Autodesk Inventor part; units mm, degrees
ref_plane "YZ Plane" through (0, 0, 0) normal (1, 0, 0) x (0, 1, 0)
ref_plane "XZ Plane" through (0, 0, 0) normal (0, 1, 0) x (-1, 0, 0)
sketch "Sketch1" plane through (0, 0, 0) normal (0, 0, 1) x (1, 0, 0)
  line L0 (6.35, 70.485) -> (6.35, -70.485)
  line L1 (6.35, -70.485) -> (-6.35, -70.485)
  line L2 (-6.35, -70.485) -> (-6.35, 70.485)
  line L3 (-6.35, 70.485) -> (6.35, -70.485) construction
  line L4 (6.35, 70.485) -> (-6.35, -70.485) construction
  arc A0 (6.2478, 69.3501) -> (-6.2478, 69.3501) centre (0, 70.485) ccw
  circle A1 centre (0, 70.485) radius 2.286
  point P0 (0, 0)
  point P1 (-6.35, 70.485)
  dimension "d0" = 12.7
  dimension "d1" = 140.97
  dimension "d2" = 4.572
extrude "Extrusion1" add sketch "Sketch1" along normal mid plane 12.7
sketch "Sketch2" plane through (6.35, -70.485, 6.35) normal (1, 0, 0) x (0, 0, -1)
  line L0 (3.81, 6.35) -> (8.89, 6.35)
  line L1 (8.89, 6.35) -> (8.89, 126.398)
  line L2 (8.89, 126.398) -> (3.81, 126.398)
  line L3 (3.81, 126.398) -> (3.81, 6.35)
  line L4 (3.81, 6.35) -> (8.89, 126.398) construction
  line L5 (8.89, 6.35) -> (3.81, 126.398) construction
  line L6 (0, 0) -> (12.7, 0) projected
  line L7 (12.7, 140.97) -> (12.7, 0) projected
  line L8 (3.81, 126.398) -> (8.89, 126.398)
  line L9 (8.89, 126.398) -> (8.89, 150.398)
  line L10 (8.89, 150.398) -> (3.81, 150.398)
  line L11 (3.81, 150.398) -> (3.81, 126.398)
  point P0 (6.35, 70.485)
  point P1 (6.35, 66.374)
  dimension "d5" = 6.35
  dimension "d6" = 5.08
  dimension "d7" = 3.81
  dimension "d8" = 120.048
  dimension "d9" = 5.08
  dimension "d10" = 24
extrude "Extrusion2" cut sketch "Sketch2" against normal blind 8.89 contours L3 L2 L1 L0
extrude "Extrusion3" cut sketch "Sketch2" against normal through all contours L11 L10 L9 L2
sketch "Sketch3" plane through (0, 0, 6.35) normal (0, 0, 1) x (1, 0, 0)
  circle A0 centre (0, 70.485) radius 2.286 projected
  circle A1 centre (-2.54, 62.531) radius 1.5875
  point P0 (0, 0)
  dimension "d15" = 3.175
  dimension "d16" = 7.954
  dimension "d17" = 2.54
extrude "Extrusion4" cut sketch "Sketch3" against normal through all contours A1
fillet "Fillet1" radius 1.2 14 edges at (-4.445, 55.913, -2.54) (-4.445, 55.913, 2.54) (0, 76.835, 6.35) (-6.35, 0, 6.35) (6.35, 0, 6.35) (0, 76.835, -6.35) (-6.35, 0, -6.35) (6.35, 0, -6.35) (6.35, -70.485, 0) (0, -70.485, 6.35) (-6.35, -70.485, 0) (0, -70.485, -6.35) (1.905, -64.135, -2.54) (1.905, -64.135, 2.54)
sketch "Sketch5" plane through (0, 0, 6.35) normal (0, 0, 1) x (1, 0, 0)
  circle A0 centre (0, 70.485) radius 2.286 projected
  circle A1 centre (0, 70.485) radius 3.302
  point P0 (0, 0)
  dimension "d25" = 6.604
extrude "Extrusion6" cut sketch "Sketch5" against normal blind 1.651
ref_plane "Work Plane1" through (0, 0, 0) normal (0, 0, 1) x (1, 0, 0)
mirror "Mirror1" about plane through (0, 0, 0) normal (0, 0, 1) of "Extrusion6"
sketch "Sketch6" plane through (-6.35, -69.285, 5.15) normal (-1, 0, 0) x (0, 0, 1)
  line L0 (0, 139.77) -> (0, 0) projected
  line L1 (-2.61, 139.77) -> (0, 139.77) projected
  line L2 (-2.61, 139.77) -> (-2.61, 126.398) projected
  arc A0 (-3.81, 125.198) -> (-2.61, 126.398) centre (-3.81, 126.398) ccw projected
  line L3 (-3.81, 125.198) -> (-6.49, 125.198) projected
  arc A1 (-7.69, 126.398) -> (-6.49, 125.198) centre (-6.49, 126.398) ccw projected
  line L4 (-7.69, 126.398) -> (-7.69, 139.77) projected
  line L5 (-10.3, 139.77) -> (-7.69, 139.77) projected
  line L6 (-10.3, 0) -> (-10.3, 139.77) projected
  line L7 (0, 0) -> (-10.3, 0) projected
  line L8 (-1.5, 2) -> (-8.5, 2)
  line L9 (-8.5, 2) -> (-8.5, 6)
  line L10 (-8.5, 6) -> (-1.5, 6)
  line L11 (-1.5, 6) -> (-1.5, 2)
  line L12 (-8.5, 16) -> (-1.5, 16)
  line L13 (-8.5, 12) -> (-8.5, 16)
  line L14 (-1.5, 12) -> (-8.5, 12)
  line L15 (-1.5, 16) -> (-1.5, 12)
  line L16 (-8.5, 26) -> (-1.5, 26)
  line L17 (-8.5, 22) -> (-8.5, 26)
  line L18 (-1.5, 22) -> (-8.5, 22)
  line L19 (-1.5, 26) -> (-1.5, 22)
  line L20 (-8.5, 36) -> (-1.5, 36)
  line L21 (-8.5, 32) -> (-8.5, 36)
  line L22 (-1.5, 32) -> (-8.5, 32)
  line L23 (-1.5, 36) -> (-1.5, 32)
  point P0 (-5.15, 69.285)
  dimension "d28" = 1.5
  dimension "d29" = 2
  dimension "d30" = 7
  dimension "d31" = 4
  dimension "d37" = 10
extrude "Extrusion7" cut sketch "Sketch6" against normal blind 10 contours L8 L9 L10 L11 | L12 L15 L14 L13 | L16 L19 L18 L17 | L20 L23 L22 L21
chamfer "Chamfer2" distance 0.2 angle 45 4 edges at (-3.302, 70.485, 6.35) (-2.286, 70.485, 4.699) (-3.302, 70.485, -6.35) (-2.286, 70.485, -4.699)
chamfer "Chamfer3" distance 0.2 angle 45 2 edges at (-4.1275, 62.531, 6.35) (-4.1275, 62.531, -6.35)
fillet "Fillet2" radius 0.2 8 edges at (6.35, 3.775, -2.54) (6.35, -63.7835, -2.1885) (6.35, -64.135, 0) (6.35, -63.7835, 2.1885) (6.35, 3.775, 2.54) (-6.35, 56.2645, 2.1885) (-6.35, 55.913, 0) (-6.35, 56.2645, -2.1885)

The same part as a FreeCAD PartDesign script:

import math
import FreeCAD as App
import Part
import Sketcher
Q = App.Units.Quantity


def edges_at(feature, points):
    """Names of the edges that pass closest to the given points."""
    edges = feature.Shape.Edges
    near = lambda p: min(range(len(edges)), key=lambda i: edges[i].distToShape(Part.Vertex(*p))[0])
    return sorted({f"Edge{near(p) + 1}" for p in points})

doc = App.newDocument("Part")
body = doc.addObject("PartDesign::Body", "Body")

# Sketch on XY plane
sketch1 = body.newObject("Sketcher::SketchObject", "Sketch")
sketch1.AttachmentSupport = (doc.getObject("XY_Plane"), [""])
sketch1.MapMode = "FlatFace"
sketch1.addGeometry([
    Part.LineSegment(App.Vector(6.3, -70.5, 0), App.Vector(6.3, 70.5, 0)),  # 0
    Part.ArcOfCircle(Part.Circle(App.Vector(0, 70.5, 0), App.Vector(0, 0, 1), 6.4), math.radians(0), math.radians(180)),  # 1
    Part.LineSegment(App.Vector(-6.3, 70.5, 0), App.Vector(-6.3, -70.5, 0)),  # 2
    Part.LineSegment(App.Vector(-6.3, -70.5, 0), App.Vector(6.3, -70.5, 0)),  # 3
    Part.Circle(App.Vector(0, 70.5, 0), App.Vector(0, 0, 1), 2.3),  # 4
], False)
sketch1.addConstraint([
    Sketcher.Constraint("Tangent", 0, 2, 1, 1),
    Sketcher.Constraint("Tangent", 1, 2, 2, 1),
    Sketcher.Constraint("Coincident", 2, 2, 3, 1),
    Sketcher.Constraint("Coincident", 3, 2, 0, 1),
    Sketcher.Constraint("Vertical", 0),
    Sketcher.Constraint("Vertical", 2),
    Sketcher.Constraint("Horizontal", 3),
    Sketcher.Constraint("Coincident", 4, 3, 1, 3),
    Sketcher.Constraint("Symmetric", 0, 2, 2, 2, -1, 1),
    Sketcher.Constraint("Diameter", 4, Q("0.18 in")),
    Sketcher.Constraint("Radius", 1, Q("0.25 in")),
    Sketcher.Constraint("DistanceY", 0, 1, 0, 2, Q("5.55 in")),
])
pad1 = body.newObject("PartDesign::Pad", "Pad")
pad1.Profile = sketch1
pad1.Length = Q("0.5 in")
pad1.Midplane = True

# Sketch on YZ plane
sketch2 = body.newObject("Sketcher::SketchObject", "Sketch001")
sketch2.AttachmentSupport = (doc.getObject("YZ_Plane"), [""])
sketch2.MapMode = "FlatFace"
sketch2.AttachmentOffset = App.Placement(App.Vector(0, 0, 0.25 * 25.4), App.Rotation())
sketch2.addGeometry([
    Part.LineSegment(App.Vector(56, 3, 0), App.Vector(-64, 3, 0)),
    Part.LineSegment(App.Vector(-64, 3, 0), App.Vector(-64, -3, 0)),
    Part.LineSegment(App.Vector(-64, -3, 0), App.Vector(56, -3, 0)),
    Part.LineSegment(App.Vector(56, -3, 0), App.Vector(56, 3, 0)),
], False)
sketch2.addConstraint([
    Sketcher.Constraint("Coincident", 0, 2, 1, 1),
    Sketcher.Constraint("Coincident", 1, 2, 2, 1),
    Sketcher.Constraint("Coincident", 2, 2, 3, 1),
    Sketcher.Constraint("Coincident", 3, 2, 0, 1),
    Sketcher.Constraint("Horizontal", 0),
    Sketcher.Constraint("Vertical", 1),
    Sketcher.Constraint("Horizontal", 2),
    Sketcher.Constraint("Vertical", 3),
    Sketcher.Constraint("DistanceY", 1, 2, 1, 1, Q("0.2 in")),
    Sketcher.Constraint("DistanceX", 0, 2, 0, 1, Q("4.7263 in")),
    Sketcher.Constraint("DistanceY", -1, 1, 0, 2, Q("0.1 in")),
    Sketcher.Constraint("DistanceX", 0, 2, -1, 1, Q("2.525 in")),
])
pocket1 = body.newObject("PartDesign::Pocket", "Pocket")
pocket1.Profile = sketch2
pocket1.Length = Q("0.35 in")

# Sketch on YZ plane
sketch3 = body.newObject("Sketcher::SketchObject", "Sketch002")
sketch3.AttachmentSupport = (doc.getObject("YZ_Plane"), [""])
sketch3.MapMode = "FlatFace"
sketch3.AttachmentOffset = App.Placement(App.Vector(0, 0, 0.25 * 25.4), App.Rotation())
sketch3.addGeometry([
    Part.LineSegment(App.Vector(80, 3, 0), App.Vector(56, 3, 0)),
    Part.LineSegment(App.Vector(56, 3, 0), App.Vector(56, -3, 0)),
    Part.LineSegment(App.Vector(56, -3, 0), App.Vector(80, -3, 0)),
    Part.LineSegment(App.Vector(80, -3, 0), App.Vector(80, 3, 0)),
], False)
sketch3.addConstraint([
    Sketcher.Constraint("Coincident", 0, 2, 1, 1),
    Sketcher.Constraint("Coincident", 1, 2, 2, 1),
    Sketcher.Constraint("Coincident", 2, 2, 3, 1),
    Sketcher.Constraint("Coincident", 3, 2, 0, 1),
    Sketcher.Constraint("Horizontal", 0),
    Sketcher.Constraint("Vertical", 1),
    Sketcher.Constraint("Horizontal", 2),
    Sketcher.Constraint("Vertical", 3),
    Sketcher.Constraint("DistanceY", 1, 2, 1, 1, Q("0.2 in")),
    Sketcher.Constraint("DistanceX", 0, 2, 0, 1, 24.0),
    Sketcher.Constraint("DistanceY", -1, 1, 0, 2, Q("0.1 in")),
    Sketcher.Constraint("DistanceX", -1, 1, 0, 2, Q("2.2013 in")),
])
pocket2 = body.newObject("PartDesign::Pocket", "Pocket001")
pocket2.Profile = sketch3
pocket2.Type = "ThroughAll"

# Sketch on XY plane
sketch4 = body.newObject("Sketcher::SketchObject", "Sketch003")
sketch4.AttachmentSupport = (doc.getObject("XY_Plane"), [""])
sketch4.MapMode = "FlatFace"
sketch4.AttachmentOffset = App.Placement(App.Vector(0, 0, 0.25 * 25.4), App.Rotation())
sketch4.addGeometry(Part.Circle(App.Vector(-2.5, 62.5, 0), App.Vector(0, 0, 1), 1.6), False)
sketch4.addConstraint([
    Sketcher.Constraint("Diameter", 0, Q("0.125 in")),
    Sketcher.Constraint("DistanceX", 0, 3, -1, 1, Q("0.1 in")),
    Sketcher.Constraint("DistanceY", -1, 1, 0, 3, 62.531),
])
pocket3 = body.newObject("PartDesign::Pocket", "Pocket002")
pocket3.Profile = sketch4
pocket3.Type = "ThroughAll"
doc.recompute()

fillet = body.newObject("PartDesign::Fillet", "Fillet")
fillet.Base = (pocket3, edges_at(pocket3, [
    (-4.445, 55.913, -2.54),
    (-4.445, 55.913, 2.54),
    (0, 76.835, 6.35),
    (-6.35, 0, 6.35),
    (6.35, 0, 6.35),
    (0, 76.835, -6.35),
    (-6.35, 0, -6.35),
    (6.35, 0, -6.35),
    (6.35, -70.485, 0),
    (0, -70.485, 6.35),
    (-6.35, -70.485, 0),
    (0, -70.485, -6.35),
    (1.905, -64.135, -2.54),
    (1.905, -64.135, 2.54),
]))
fillet.Radius = 1.2

# Sketch on XY plane
sketch5 = body.newObject("Sketcher::SketchObject", "Sketch004")
sketch5.AttachmentSupport = (doc.getObject("XY_Plane"), [""])
sketch5.MapMode = "FlatFace"
sketch5.AttachmentOffset = App.Placement(App.Vector(0, 0, 0.25 * 25.4), App.Rotation())
sketch5.addGeometry([
    Part.Circle(App.Vector(0, 70.5, 0), App.Vector(0, 0, 1), 3.3),
    Part.Circle(App.Vector(0, 70.5, 0), App.Vector(0, 0, 1), 2.3),
], False)
sketch5.addConstraint([
    Sketcher.Constraint("Coincident", 1, 3, 0, 3),
    Sketcher.Constraint("PointOnObject", 0, 3, -2),
    Sketcher.Constraint("Diameter", 0, Q("0.26 in")),
    Sketcher.Constraint("Diameter", 1, Q("0.18 in")),
    Sketcher.Constraint("DistanceY", -1, 1, 0, 3, Q("2.775 in")),
])
pocket4 = body.newObject("PartDesign::Pocket", "Pocket003")
pocket4.Profile = sketch5
pocket4.Length = Q("0.065 in")
doc.recompute()

mirrored = body.newObject("PartDesign::Mirrored", "Mirrored")
mirrored.Originals = [pocket4]
mirrored.MirrorPlane = (doc.getObject("XY_Plane"), [""])
body.Tip = mirrored

# Sketch on YZ plane
sketch6 = body.newObject("Sketcher::SketchObject", "Sketch005")
sketch6.AttachmentSupport = (doc.getObject("YZ_Plane"), [""])
sketch6.MapMode = "FlatFace"
sketch6.AttachmentOffset = App.Placement(App.Vector(0, 0, -0.25 * 25.4), App.Rotation())
sketch6.addGeometry([
    Part.LineSegment(App.Vector(-67.3, -3.4, 0), App.Vector(-67.3, 3.6, 0)),  # 0
    Part.LineSegment(App.Vector(-67.3, 3.6, 0), App.Vector(-63.3, 3.6, 0)),  # 1
    Part.LineSegment(App.Vector(-63.3, 3.6, 0), App.Vector(-63.3, -3.4, 0)),  # 2
    Part.LineSegment(App.Vector(-63.3, -3.4, 0), App.Vector(-67.3, -3.4, 0)),  # 3
    Part.LineSegment(App.Vector(-53.3, 3.6, 0), App.Vector(-53.3, -3.4, 0)),  # 4
    Part.LineSegment(App.Vector(-53.3, -3.4, 0), App.Vector(-57.3, -3.4, 0)),  # 5
    Part.LineSegment(App.Vector(-57.3, -3.4, 0), App.Vector(-57.3, 3.6, 0)),  # 6
    Part.LineSegment(App.Vector(-57.3, 3.6, 0), App.Vector(-53.3, 3.6, 0)),  # 7
    Part.LineSegment(App.Vector(-43.3, 3.6, 0), App.Vector(-43.3, -3.4, 0)),  # 8
    Part.LineSegment(App.Vector(-43.3, -3.4, 0), App.Vector(-47.3, -3.4, 0)),  # 9
    Part.LineSegment(App.Vector(-47.3, -3.4, 0), App.Vector(-47.3, 3.6, 0)),  # 10
    Part.LineSegment(App.Vector(-47.3, 3.6, 0), App.Vector(-43.3, 3.6, 0)),  # 11
    Part.LineSegment(App.Vector(-33.3, 3.6, 0), App.Vector(-33.3, -3.4, 0)),  # 12
    Part.LineSegment(App.Vector(-33.3, -3.4, 0), App.Vector(-37.3, -3.4, 0)),  # 13
    Part.LineSegment(App.Vector(-37.3, -3.4, 0), App.Vector(-37.3, 3.6, 0)),  # 14
    Part.LineSegment(App.Vector(-37.3, 3.6, 0), App.Vector(-33.3, 3.6, 0)),  # 15
], False)
sketch6.addConstraint([
    Sketcher.Constraint("Coincident", 0, 2, 1, 1),
    Sketcher.Constraint("Coincident", 1, 2, 2, 1),
    Sketcher.Constraint("Coincident", 2, 2, 3, 1),
    Sketcher.Constraint("Coincident", 3, 2, 0, 1),
    Sketcher.Constraint("Coincident", 4, 2, 5, 1),
    Sketcher.Constraint("Coincident", 5, 2, 6, 1),
    Sketcher.Constraint("Coincident", 6, 2, 7, 1),
    Sketcher.Constraint("Coincident", 7, 2, 4, 1),
    Sketcher.Constraint("Coincident", 8, 2, 9, 1),
    Sketcher.Constraint("Coincident", 9, 2, 10, 1),
    Sketcher.Constraint("Coincident", 10, 2, 11, 1),
    Sketcher.Constraint("Coincident", 11, 2, 8, 1),
    Sketcher.Constraint("Coincident", 12, 2, 13, 1),
    Sketcher.Constraint("Coincident", 13, 2, 14, 1),
    Sketcher.Constraint("Coincident", 14, 2, 15, 1),
    Sketcher.Constraint("Coincident", 15, 2, 12, 1),
    Sketcher.Constraint("Vertical", 0),
    Sketcher.Constraint("Horizontal", 1),
    Sketcher.Constraint("Vertical", 2),
    Sketcher.Constraint("Horizontal", 3),
    Sketcher.Constraint("Vertical", 4),
    Sketcher.Constraint("Horizontal", 5),
    Sketcher.Constraint("Vertical", 6),
    Sketcher.Constraint("Horizontal", 7),
    Sketcher.Constraint("Vertical", 8),
    Sketcher.Constraint("Horizontal", 9),
    Sketcher.Constraint("Vertical", 10),
    Sketcher.Constraint("Horizontal", 11),
    Sketcher.Constraint("Vertical", 12),
    Sketcher.Constraint("Horizontal", 13),
    Sketcher.Constraint("Vertical", 14),
    Sketcher.Constraint("Horizontal", 15),
    Sketcher.Constraint("Horizontal", 3, 2, 4, 2),
    Sketcher.Constraint("Horizontal", 1, 2, 6, 2),
    Sketcher.Constraint("Horizontal", 5, 2, 8, 2),
    Sketcher.Constraint("Horizontal", 7, 2, 10, 2),
    Sketcher.Constraint("Horizontal", 9, 2, 12, 2),
    Sketcher.Constraint("Horizontal", 11, 2, 14, 2),
    Sketcher.Constraint("Equal", 3, 5),
    Sketcher.Constraint("Equal", 7, 9),
    Sketcher.Constraint("Equal", 11, 13),
    Sketcher.Constraint("DistanceY", 0, 1, 0, 2, Q("0.2756 in")),
    Sketcher.Constraint("DistanceX", 1, 1, 1, 2, 4.0),
    Sketcher.Constraint("DistanceX", 2, 2, 4, 2, Q("0.3937 in")),
    Sketcher.Constraint("DistanceX", 4, 2, 8, 2, Q("0.3937 in")),
    Sketcher.Constraint("DistanceX", 8, 2, 12, 2, Q("0.3937 in")),
    Sketcher.Constraint("DistanceY", -1, 1, 0, 2, Q("0.1437 in")),
    Sketcher.Constraint("DistanceX", 0, 2, -1, 1, 67.285),
])
pocket5 = body.newObject("PartDesign::Pocket", "Pocket004")
pocket5.Profile = sketch6
pocket5.Length = Q("0.3937008 in")
pocket5.Reversed = True
doc.recompute()

chamfer = body.newObject("PartDesign::Chamfer", "Chamfer")
chamfer.Base = (pocket5, edges_at(pocket5, [
    (-3.302, 70.485, 6.35),
    (-2.286, 70.485, 4.699),
    (-3.302, 70.485, -6.35),
    (-2.286, 70.485, -4.699),
]))
chamfer.Size = 0.2
doc.recompute()

chamfer2 = body.newObject("PartDesign::Chamfer", "Chamfer001")
chamfer2.Base = (chamfer, edges_at(chamfer, [(-4.128, 62.531, 6.35), (-4.128, 62.531, -6.35)]))
chamfer2.Size = 0.2
doc.recompute()

fillet2 = body.newObject("PartDesign::Fillet", "Fillet001")
fillet2.Base = (chamfer2, edges_at(chamfer2, [
    (6.35, 3.775, -2.54),
    (6.35, -63.783, -2.188),
    (6.35, -64.135, 0),
    (6.35, -63.783, 2.188),
    (6.35, 3.775, 2.54),
    (-6.35, 56.264, 2.188),
    (-6.35, 55.913, 0),
    (-6.35, 56.264, -2.188),
]))
fillet2.Radius = 0.2

doc.recompute()
